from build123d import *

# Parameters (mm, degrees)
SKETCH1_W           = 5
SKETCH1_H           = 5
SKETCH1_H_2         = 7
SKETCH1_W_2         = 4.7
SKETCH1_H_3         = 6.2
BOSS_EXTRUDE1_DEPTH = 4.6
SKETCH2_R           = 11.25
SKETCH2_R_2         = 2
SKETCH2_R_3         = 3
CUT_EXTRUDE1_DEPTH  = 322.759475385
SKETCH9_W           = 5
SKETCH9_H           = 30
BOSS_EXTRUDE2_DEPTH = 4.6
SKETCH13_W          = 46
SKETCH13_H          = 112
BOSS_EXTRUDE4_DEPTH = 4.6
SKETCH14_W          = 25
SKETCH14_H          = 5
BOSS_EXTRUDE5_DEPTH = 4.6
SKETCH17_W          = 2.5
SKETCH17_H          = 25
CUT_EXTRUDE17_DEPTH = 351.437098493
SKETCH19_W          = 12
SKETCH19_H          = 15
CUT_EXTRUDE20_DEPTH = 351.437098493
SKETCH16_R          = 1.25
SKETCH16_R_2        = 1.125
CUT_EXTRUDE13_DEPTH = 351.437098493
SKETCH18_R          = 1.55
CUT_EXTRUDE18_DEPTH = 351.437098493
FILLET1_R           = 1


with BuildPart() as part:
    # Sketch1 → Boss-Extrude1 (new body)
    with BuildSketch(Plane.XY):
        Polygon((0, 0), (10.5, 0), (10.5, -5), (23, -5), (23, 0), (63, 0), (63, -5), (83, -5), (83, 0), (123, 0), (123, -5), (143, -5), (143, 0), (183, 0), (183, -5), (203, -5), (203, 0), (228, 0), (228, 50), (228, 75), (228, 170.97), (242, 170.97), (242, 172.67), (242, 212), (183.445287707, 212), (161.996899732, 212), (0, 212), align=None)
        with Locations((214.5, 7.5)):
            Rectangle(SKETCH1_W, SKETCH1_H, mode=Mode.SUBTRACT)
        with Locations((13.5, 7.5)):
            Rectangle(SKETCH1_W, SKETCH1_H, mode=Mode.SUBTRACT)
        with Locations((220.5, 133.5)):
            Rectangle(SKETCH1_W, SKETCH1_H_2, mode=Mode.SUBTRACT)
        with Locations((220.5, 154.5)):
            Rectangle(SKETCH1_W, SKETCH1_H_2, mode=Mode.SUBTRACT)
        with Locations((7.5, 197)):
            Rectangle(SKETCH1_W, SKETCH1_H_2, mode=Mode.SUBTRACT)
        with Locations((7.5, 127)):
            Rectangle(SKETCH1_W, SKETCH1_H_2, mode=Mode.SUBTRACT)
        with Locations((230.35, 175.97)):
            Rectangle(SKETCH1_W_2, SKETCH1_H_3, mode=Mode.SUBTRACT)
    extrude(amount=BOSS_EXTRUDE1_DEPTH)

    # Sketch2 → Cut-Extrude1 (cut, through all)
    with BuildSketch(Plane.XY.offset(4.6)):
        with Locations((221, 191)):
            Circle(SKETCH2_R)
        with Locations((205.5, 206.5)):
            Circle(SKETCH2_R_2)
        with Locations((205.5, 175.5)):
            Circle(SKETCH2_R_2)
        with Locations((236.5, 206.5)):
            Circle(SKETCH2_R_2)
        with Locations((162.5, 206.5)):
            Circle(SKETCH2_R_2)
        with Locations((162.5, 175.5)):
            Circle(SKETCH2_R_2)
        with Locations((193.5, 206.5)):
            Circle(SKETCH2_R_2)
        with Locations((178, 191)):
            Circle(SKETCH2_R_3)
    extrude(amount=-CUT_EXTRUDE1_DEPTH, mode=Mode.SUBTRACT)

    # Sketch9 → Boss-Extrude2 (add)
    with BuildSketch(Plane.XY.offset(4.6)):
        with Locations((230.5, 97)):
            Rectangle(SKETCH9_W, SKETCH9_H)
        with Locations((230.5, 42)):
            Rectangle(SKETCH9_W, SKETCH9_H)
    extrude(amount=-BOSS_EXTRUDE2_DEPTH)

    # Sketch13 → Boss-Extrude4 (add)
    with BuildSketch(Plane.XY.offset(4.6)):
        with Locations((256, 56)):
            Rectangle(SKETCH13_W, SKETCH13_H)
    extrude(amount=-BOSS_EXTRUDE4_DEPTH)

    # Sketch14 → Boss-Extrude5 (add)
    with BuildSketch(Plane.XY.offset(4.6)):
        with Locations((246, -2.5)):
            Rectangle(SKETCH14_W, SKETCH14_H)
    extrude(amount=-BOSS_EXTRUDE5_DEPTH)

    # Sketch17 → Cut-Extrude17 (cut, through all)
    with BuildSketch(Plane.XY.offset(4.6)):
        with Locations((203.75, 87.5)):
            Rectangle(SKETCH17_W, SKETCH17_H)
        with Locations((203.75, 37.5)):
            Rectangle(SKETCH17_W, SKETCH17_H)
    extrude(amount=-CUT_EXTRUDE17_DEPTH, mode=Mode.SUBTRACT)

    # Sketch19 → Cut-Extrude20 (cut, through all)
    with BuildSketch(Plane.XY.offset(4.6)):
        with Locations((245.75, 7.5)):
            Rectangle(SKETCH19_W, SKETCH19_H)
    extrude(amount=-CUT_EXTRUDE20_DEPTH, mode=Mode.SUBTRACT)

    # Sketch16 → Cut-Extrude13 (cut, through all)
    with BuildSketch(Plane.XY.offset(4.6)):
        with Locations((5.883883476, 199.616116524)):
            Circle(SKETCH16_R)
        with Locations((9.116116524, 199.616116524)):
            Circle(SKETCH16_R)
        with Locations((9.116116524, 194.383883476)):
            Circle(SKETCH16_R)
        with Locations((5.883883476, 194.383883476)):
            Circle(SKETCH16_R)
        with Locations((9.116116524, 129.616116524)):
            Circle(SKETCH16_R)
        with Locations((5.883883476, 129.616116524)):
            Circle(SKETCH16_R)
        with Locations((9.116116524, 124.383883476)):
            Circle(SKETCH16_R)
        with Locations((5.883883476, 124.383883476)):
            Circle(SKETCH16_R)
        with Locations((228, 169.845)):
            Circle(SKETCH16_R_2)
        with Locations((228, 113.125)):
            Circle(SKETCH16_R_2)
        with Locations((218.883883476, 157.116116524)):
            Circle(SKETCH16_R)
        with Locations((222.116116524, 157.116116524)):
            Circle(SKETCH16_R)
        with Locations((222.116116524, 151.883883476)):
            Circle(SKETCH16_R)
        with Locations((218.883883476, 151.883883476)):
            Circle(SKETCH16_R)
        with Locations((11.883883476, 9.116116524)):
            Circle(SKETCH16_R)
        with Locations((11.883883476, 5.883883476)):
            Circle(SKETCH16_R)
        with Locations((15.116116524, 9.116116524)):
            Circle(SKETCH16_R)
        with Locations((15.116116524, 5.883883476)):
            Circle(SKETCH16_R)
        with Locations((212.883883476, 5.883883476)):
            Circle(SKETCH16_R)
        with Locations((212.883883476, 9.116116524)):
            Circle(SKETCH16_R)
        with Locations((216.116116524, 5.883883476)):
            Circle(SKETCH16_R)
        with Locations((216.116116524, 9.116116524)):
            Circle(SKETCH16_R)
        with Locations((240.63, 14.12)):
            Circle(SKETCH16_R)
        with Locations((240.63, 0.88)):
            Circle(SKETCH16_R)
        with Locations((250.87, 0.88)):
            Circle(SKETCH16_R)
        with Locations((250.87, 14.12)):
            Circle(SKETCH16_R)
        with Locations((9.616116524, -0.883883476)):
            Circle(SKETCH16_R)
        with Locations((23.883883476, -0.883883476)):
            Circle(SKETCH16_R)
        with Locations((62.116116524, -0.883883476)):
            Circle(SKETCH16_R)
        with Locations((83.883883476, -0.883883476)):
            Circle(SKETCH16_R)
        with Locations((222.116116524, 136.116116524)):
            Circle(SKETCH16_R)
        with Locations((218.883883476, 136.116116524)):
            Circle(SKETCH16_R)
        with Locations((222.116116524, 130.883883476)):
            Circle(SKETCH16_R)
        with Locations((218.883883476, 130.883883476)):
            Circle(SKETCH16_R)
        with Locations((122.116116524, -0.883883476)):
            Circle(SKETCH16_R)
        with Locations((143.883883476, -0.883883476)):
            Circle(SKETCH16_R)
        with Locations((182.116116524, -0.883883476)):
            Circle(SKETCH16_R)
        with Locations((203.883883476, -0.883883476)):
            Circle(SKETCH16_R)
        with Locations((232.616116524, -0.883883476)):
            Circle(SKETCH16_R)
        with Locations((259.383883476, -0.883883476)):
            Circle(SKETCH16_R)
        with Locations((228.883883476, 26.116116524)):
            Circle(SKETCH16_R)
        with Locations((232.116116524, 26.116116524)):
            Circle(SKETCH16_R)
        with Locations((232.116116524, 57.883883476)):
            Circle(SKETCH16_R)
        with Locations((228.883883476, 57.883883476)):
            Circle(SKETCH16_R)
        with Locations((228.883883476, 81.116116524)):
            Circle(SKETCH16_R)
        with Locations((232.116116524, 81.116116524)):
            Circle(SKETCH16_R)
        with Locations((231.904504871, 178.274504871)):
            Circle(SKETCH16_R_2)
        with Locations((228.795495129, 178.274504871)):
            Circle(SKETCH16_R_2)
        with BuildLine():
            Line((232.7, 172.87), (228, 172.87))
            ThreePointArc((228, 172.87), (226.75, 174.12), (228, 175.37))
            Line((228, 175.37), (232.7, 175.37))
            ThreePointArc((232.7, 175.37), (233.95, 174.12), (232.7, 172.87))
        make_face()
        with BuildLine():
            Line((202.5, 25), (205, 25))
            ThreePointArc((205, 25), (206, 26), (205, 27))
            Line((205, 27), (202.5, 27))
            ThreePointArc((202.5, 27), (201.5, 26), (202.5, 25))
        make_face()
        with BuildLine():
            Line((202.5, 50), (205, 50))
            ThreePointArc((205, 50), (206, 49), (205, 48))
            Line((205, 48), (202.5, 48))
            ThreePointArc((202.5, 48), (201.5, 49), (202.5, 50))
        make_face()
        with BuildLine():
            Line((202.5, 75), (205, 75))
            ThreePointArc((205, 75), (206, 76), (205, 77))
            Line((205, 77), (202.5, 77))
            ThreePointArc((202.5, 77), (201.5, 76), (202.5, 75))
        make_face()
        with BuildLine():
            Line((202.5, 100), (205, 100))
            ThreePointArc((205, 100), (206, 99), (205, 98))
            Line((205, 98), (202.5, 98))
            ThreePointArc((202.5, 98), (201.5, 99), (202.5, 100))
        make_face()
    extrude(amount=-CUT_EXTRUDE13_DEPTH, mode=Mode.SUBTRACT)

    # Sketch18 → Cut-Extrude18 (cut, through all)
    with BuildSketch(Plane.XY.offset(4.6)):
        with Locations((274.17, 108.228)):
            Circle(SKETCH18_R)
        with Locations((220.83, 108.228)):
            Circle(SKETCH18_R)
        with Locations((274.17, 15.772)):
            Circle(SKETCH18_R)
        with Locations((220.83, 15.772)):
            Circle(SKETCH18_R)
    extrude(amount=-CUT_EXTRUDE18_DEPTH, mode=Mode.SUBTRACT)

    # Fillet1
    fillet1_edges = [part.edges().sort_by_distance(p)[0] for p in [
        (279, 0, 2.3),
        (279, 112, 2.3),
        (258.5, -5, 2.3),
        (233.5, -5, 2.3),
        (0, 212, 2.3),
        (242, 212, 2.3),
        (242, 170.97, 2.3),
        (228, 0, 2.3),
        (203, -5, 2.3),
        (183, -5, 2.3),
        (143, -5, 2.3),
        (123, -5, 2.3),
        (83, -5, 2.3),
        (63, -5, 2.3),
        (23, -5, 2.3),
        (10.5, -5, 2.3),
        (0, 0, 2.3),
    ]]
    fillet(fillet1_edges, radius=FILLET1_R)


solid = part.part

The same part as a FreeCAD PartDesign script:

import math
import FreeCAD as App
import Part
import Sketcher


def edges_at(feature, points):
    """Names of the edges that pass closest to the given points."""
    edges = feature.Shape.Edges
    near = lambda p: min(range(len(edges)), key=lambda i: edges[i].distToShape(Part.Vertex(*p))[0])
    return sorted({f"Edge{near(p) + 1}" for p in points})

doc = App.newDocument("Part")
params = doc.addObject("Spreadsheet::Sheet", "Params")
for row, (alias, value) in enumerate([
    ("sketch1_width", "40 mm"),
    ("sketch1_width2", "20 mm"),
    ("sketch1_width3", "25 mm"),
    ("sketch1_width4", "14 mm"),
    ("sketch1_width5", "242 mm"),
    ("pad1_length", "4.6 mm"),
    ("sketch2_diameter", "4 mm"),
    ("sketch2_diameter2", "6 mm"),
    ("sketch2_diameter3", "22.5 mm"),
    ("sketch3_width", "5 mm"),
    ("sketch3_height", "30 mm"),
    ("pad2_length", "4.6 mm"),
    ("sketch4_width", "46 mm"),
    ("sketch4_height", "112 mm"),
    ("pad3_length", "4.6 mm"),
    ("sketch5_width", "25 mm"),
    ("sketch5_height", "5 mm"),
    ("pad4_length", "4.6 mm"),
    ("sketch6_height", "25 mm"),
    ("sketch6_width", "2.5 mm"),
    ("sketch7_width", "12 mm"),
    ("sketch7_height", "15 mm"),
    ("sketch8_radius", "1 mm"),
    ("sketch8_diameter", "2.5 mm"),
    ("sketch8_diameter2", "2.25 mm"),
    ("sketch8_width", "4.7 mm"),
    ("sketch8_width2", "2.5 mm"),
    ("sketch9_diameter", "3.1 mm"),
    ("fillet_radius", "1 mm"),
], start=1):
    params.set(f"A{row}", alias)
    params.set(f"B{row}", "=" + value)
    params.setAlias(f"B{row}", alias)

body = doc.addObject("PartDesign::Body", "Body")

sketch1 = body.newObject("Sketcher::SketchObject", "Sketch")
sketch1.AttachmentSupport = (doc.getObject("XY_Plane"), [""])
sketch1.MapMode = "FlatFace"
sketch1.addGeometry([
    Part.LineSegment(App.Vector(0, 0, 0), App.Vector(10.5, 0, 0)),
    Part.LineSegment(App.Vector(10.5, 0, 0), App.Vector(10.5, -5, 0)),
    Part.LineSegment(App.Vector(10.5, -5, 0), App.Vector(23, -5, 0)),
    Part.LineSegment(App.Vector(23, -5, 0), App.Vector(23, 0, 0)),
    Part.LineSegment(App.Vector(23, 0, 0), App.Vector(63, 0, 0)),
    Part.LineSegment(App.Vector(63, 0, 0), App.Vector(63, -5, 0)),
    Part.LineSegment(App.Vector(63, -5, 0), App.Vector(83, -5, 0)),
    Part.LineSegment(App.Vector(83, -5, 0), App.Vector(83, 0, 0)),
    Part.LineSegment(App.Vector(83, 0, 0), App.Vector(123, 0, 0)),
    Part.LineSegment(App.Vector(123, 0, 0), App.Vector(123, -5, 0)),
    Part.LineSegment(App.Vector(123, -5, 0), App.Vector(143, -5, 0)),
    Part.LineSegment(App.Vector(143, -5, 0), App.Vector(143, 0, 0)),
    Part.LineSegment(App.Vector(143, 0, 0), App.Vector(183, 0, 0)),
    Part.LineSegment(App.Vector(183, 0, 0), App.Vector(183, -5, 0)),
    Part.LineSegment(App.Vector(183, -5, 0), App.Vector(203, -5, 0)),
    Part.LineSegment(App.Vector(203, -5, 0), App.Vector(203, 0, 0)),
    Part.LineSegment(App.Vector(203, 0, 0), App.Vector(228, 0, 0)),
    Part.LineSegment(App.Vector(228, 0, 0), App.Vector(228, 171, 0)),
    Part.LineSegment(App.Vector(228, 171, 0), App.Vector(242, 171, 0)),
    Part.LineSegment(App.Vector(242, 171, 0), App.Vector(242, 212, 0)),
    Part.LineSegment(App.Vector(242, 212, 0), App.Vector(0, 212, 0)),
    Part.LineSegment(App.Vector(0, 212, 0), App.Vector(0, 0, 0)),
    Part.LineSegment(App.Vector(16, 5, 0), App.Vector(11, 5, 0)),
    Part.LineSegment(App.Vector(11, 5, 0), App.Vector(11, 10, 0)),
    Part.LineSegment(App.Vector(11, 10, 0), App.Vector(16, 10, 0)),
    Part.LineSegment(App.Vector(16, 10, 0), App.Vector(16, 5, 0)),
    Part.LineSegment(App.Vector(217, 5, 0), App.Vector(212, 5, 0)),
    Part.LineSegment(App.Vector(212, 5, 0), App.Vector(212, 10, 0)),
    Part.LineSegment(App.Vector(212, 10, 0), App.Vector(217, 10, 0)),
    Part.LineSegment(App.Vector(217, 10, 0), App.Vector(217, 5, 0)),
    Part.LineSegment(App.Vector(10, 123.5, 0), App.Vector(5, 123.5, 0)),
    Part.LineSegment(App.Vector(5, 123.5, 0), App.Vector(5, 130.5, 0)),
    Part.LineSegment(App.Vector(5, 130.5, 0), App.Vector(10, 130.5, 0)),
    Part.LineSegment(App.Vector(10, 130.5, 0), App.Vector(10, 123.5, 0)),
    Part.LineSegment(App.Vector(10, 193.5, 0), App.Vector(5, 193.5, 0)),
    Part.LineSegment(App.Vector(5, 193.5, 0), App.Vector(5, 200.5, 0)),
    Part.LineSegment(App.Vector(5, 200.5, 0), App.Vector(10, 200.5, 0)),
    Part.LineSegment(App.Vector(10, 200.5, 0), App.Vector(10, 193.5, 0)),
    Part.LineSegment(App.Vector(223, 130, 0), App.Vector(218, 130, 0)),
    Part.LineSegment(App.Vector(218, 130, 0), App.Vector(218, 137, 0)),
    Part.LineSegment(App.Vector(218, 137, 0), App.Vector(223, 137, 0)),
    Part.LineSegment(App.Vector(223, 137, 0), App.Vector(223, 130, 0)),
    Part.LineSegment(App.Vector(223, 151, 0), App.Vector(218, 151, 0)),
    Part.LineSegment(App.Vector(218, 151, 0), App.Vector(218, 158, 0)),
    Part.LineSegment(App.Vector(218, 158, 0), App.Vector(223, 158, 0)),
    Part.LineSegment(App.Vector(223, 158, 0), App.Vector(223, 151, 0)),
    Part.LineSegment(App.Vector(232.7, 172.9, 0), App.Vector(228, 172.9, 0)),
    Part.LineSegment(App.Vector(228, 172.9, 0), App.Vector(228, 179.1, 0)),
    Part.LineSegment(App.Vector(228, 179.1, 0), App.Vector(232.7, 179.1, 0)),
    Part.LineSegment(App.Vector(232.7, 179.1, 0), App.Vector(232.7, 172.9, 0)),
], False)
sketch1.addConstraint([
    Sketcher.Constraint("Coincident", 0, 2, 1, 1),
    Sketcher.Constraint("Coincident", 1, 2, 2, 1),
    Sketcher.Constraint("Coincident", 2, 2, 3, 1),
    Sketcher.Constraint("Coincident", 3, 2, 4, 1),
    Sketcher.Constraint("Coincident", 4, 2, 5, 1),
    Sketcher.Constraint("Coincident", 5, 2, 6, 1),
    Sketcher.Constraint("Coincident", 6, 2, 7, 1),
    Sketcher.Constraint("Coincident", 7, 2, 8, 1),
    Sketcher.Constraint("Coincident", 8, 2, 9, 1),
    Sketcher.Constraint("Coincident", 9, 2, 10, 1),
    Sketcher.Constraint("Coincident", 10, 2, 11, 1),
    Sketcher.Constraint("Coincident", 11, 2, 12, 1),
    Sketcher.Constraint("Coincident", 12, 2, 13, 1),
    Sketcher.Constraint("Coincident", 13, 2, 14, 1),
    Sketcher.Constraint("Coincident", 14, 2, 15, 1),
    Sketcher.Constraint("Coincident", 15, 2, 16, 1),
    Sketcher.Constraint("Coincident", 16, 2, 17, 1),
    Sketcher.Constraint("Coincident", 17, 2, 18, 1),
    Sketcher.Constraint("Coincident", 18, 2, 19, 1),
    Sketcher.Constraint("Coincident", 19, 2, 20, 1),
    Sketcher.Constraint("Coincident", 20, 2, 21, 1),
    Sketcher.Constraint("Coincident", 21, 2, 0, 1),
    Sketcher.Constraint("Coincident", 22, 2, 23, 1),
    Sketcher.Constraint("Coincident", 23, 2, 24, 1),
    Sketcher.Constraint("Coincident", 24, 2, 25, 1),
    Sketcher.Constraint("Coincident", 25, 2, 22, 1),
    Sketcher.Constraint("Coincident", 26, 2, 27, 1),
    Sketcher.Constraint("Coincident", 27, 2, 28, 1),
    Sketcher.Constraint("Coincident", 28, 2, 29, 1),
    Sketcher.Constraint("Coincident", 29, 2, 26, 1),
    Sketcher.Constraint("Coincident", 30, 2, 31, 1),
    Sketcher.Constraint("Coincident", 31, 2, 32, 1),
    Sketcher.Constraint("Coincident", 32, 2, 33, 1),
    Sketcher.Constraint("Coincident", 33, 2, 30, 1),
    Sketcher.Constraint("Coincident", 34, 2, 35, 1),
    Sketcher.Constraint("Coincident", 35, 2, 36, 1),
    Sketcher.Constraint("Coincident", 36, 2, 37, 1),
    Sketcher.Constraint("Coincident", 37, 2, 34, 1),
    Sketcher.Constraint("Coincident", 38, 2, 39, 1),
    Sketcher.Constraint("Coincident", 39, 2, 40, 1),
    Sketcher.Constraint("Coincident", 40, 2, 41, 1),
    Sketcher.Constraint("Coincident", 41, 2, 38, 1),
    Sketcher.Constraint("Coincident", 42, 2, 43, 1),
    Sketcher.Constraint("Coincident", 43, 2, 44, 1),
    Sketcher.Constraint("Coincident", 44, 2, 45, 1),
    Sketcher.Constraint("Coincident", 45, 2, 42, 1),
    Sketcher.Constraint("Coincident", 46, 2, 47, 1),
    Sketcher.Constraint("Coincident", 47, 2, 48, 1),
    Sketcher.Constraint("Coincident", 48, 2, 49, 1),
    Sketcher.Constraint("Coincident", 49, 2, 46, 1),
    Sketcher.Constraint("Horizontal", 0),
    Sketcher.Constraint("Vertical", 1),
    Sketcher.Constraint("Horizontal", 2),
    Sketcher.Constraint("Vertical", 3),
    Sketcher.Constraint("Horizontal", 4),
    Sketcher.Constraint("Vertical", 5),
    Sketcher.Constraint("Horizontal", 6),
    Sketcher.Constraint("Vertical", 7),
    Sketcher.Constraint("Horizontal", 8),
    Sketcher.Constraint("Vertical", 9),
    Sketcher.Constraint("Horizontal", 10),
    Sketcher.Constraint("Vertical", 11),
    Sketcher.Constraint("Horizontal", 12),
    Sketcher.Constraint("Vertical", 13),
    Sketcher.Constraint("Horizontal", 14),
    Sketcher.Constraint("Vertical", 15),
    Sketcher.Constraint("Horizontal", 16),
    Sketcher.Constraint("Vertical", 17),
    Sketcher.Constraint("Horizontal", 18),
    Sketcher.Constraint("Vertical", 19),
    Sketcher.Constraint("Horizontal", 20),
    Sketcher.Constraint("Vertical", 21),
    Sketcher.Constraint("Horizontal", 22),
    Sketcher.Constraint("Vertical", 23),
    Sketcher.Constraint("Horizontal", 24),
    Sketcher.Constraint("Vertical", 25),
    Sketcher.Constraint("Horizontal", 26),
    Sketcher.Constraint("Vertical", 27),
    Sketcher.Constraint("Horizontal", 28),
    Sketcher.Constraint("Vertical", 29),
    Sketcher.Constraint("Horizontal", 30),
    Sketcher.Constraint("Vertical", 31),
    Sketcher.Constraint("Horizontal", 32),
    Sketcher.Constraint("Vertical", 33),
    Sketcher.Constraint("Horizontal", 34),
    Sketcher.Constraint("Vertical", 35),
    Sketcher.Constraint("Horizontal", 36),
    Sketcher.Constraint("Vertical", 37),
    Sketcher.Constraint("Horizontal", 38),
    Sketcher.Constraint("Vertical", 39),
    Sketcher.Constraint("Horizontal", 40),
    Sketcher.Constraint("Vertical", 41),
    Sketcher.Constraint("Horizontal", 42),
    Sketcher.Constraint("Vertical", 43),
    Sketcher.Constraint("Horizontal", 44),
    Sketcher.Constraint("Vertical", 45),
    Sketcher.Constraint("Horizontal", 46),
    Sketcher.Constraint("Vertical", 47),
    Sketcher.Constraint("Horizontal", 48),
    Sketcher.Constraint("Vertical", 49),
    Sketcher.Constraint("Coincident", 21, 2, -1, 1),
    Sketcher.Constraint("PointOnObject", 3, 2, -1),
    Sketcher.Constraint("PointOnObject", 7, 2, -1),
    Sketcher.Constraint("PointOnObject", 11, 2, -1),
    Sketcher.Constraint("PointOnObject", 15, 2, -1),
    Sketcher.Constraint("Horizontal", 2, 2, 5, 2),
    Sketcher.Constraint("Horizontal", 6, 2, 9, 2),
    Sketcher.Constraint("Horizontal", 10, 2, 13, 2),
    Sketcher.Constraint("Horizontal", 25, 2, 26, 2),
    Sketcher.Constraint("Horizontal", 24, 2, 27, 2),
    Sketcher.Constraint("Vertical", 31, 2, 34, 2),
    Sketcher.Constraint("Vertical", 33, 2, 36, 2),
    Sketcher.Constraint("Vertical", 39, 2, 42, 2),
    Sketcher.Constraint("Vertical", 41, 2, 44, 2),
    Sketcher.Constraint("Vertical", 17, 2, 46, 2),
    Sketcher.Constraint("Equal", 4, 8),
    Sketcher.Constraint("Equal", 6, 10),
    Sketcher.Constraint("Equal", 8, 12),
    Sketcher.Constraint("Equal", 10, 14),
    Sketcher.Constraint("Equal", 24, 26),
    Sketcher.Constraint("Equal", 28, 30),
    Sketcher.Constraint("Equal", 36, 38),
    Sketcher.Constraint("Equal", 44, 1),
    Sketcher.Constraint("Equal", 15, 23),
    Sketcher.Constraint("Equal", 33, 35),
    Sketcher.Constraint("Equal", 37, 39),
    Sketcher.Constraint("Equal", 41, 43),
    Sketcher.Constraint("DistanceX", 4, 1, 4, 2, 40.0),
    Sketcher.Constraint("DistanceX", 6, 1, 6, 2, 20.0),
    Sketcher.Constraint("DistanceX", 16, 1, 16, 2, 25.0),
    Sketcher.Constraint("DistanceX", 18, 1, 18, 2, 14.0),
    Sketcher.Constraint("DistanceX", 20, 2, 20, 1, 242.0),
    Sketcher.Constraint("DistanceX", 22, 2, 22, 1, 5.0),
    Sketcher.Constraint("DistanceY", 21, 2, 21, 1, 212.0),
    Sketcher.Constraint("DistanceY", 31, 1, 31, 2, 7.0),
    Sketcher.Constraint("DistanceX", 0, 1, 0, 2, 10.5),
    Sketcher.Constraint("DistanceX", 46, 2, 46, 1, 4.7),
    Sketcher.Constraint("DistanceY", 47, 1, 47, 2, 6.2),
    Sketcher.Constraint("DistanceX", -1, 1, 22, 2, 11.0),
    Sketcher.Constraint("DistanceY", -1, 1, 22, 2, 5.0),
    Sketcher.Constraint("DistanceX", -1, 1, 26, 2, 212.0),
    Sketcher.Constraint("DistanceX", -1, 1, 30, 2, 5.0),
    Sketcher.Constraint("DistanceX", -1, 1, 38, 2, 218.0),
    Sketcher.Constraint("DistanceY", -1, 1, 38, 2, 130.0),
    Sketcher.Constraint("DistanceY", -1, 1, 42, 2, 151.0),
    Sketcher.Constraint("DistanceY", 31, 2, 34, 2, 63.0),
    Sketcher.Constraint("DistanceY", 17, 1, 17, 2, 170.97),
    Sketcher.Constraint("DistanceY", -1, 1, 30, 2, 123.5),
    Sketcher.Constraint("DistanceY", 17, 2, 46, 2, 1.9),
])
sketch1.setExpression("Constraints[127]", "Params.sketch1_width")
sketch1.setExpression("Constraints[128]", "Params.sketch1_width2")
sketch1.setExpression("Constraints[129]", "Params.sketch1_width3")
sketch1.setExpression("Constraints[130]", "Params.sketch1_width4")
sketch1.setExpression("Constraints[131]", "Params.sketch1_width5")
pad1 = body.newObject("PartDesign::Pad", "Pad")
pad1.Profile = sketch1
pad1.setExpression("Length", "Params.pad1_length")

sketch2 = body.newObject("Sketcher::SketchObject", "Sketch001")
sketch2.AttachmentSupport = (doc.getObject("XY_Plane"), [""])
sketch2.MapMode = "FlatFace"
sketch2.AttachmentOffset = App.Placement(App.Vector(0, 0, 4.6), App.Rotation())
sketch2.addGeometry([
    Part.Circle(App.Vector(221, 191, 0), App.Vector(0, 0, 1), 11.2),
    Part.Circle(App.Vector(205.5, 206.5, 0), App.Vector(0, 0, 1), 2),
    Part.Circle(App.Vector(205.5, 175.5, 0), App.Vector(0, 0, 1), 2),
    Part.Circle(App.Vector(236.5, 206.5, 0), App.Vector(0, 0, 1), 2),
    Part.Circle(App.Vector(162.5, 206.5, 0), App.Vector(0, 0, 1), 2),
    Part.Circle(App.Vector(162.5, 175.5, 0), App.Vector(0, 0, 1), 2),
    Part.Circle(App.Vector(193.5, 206.5, 0), App.Vector(0, 0, 1), 2),
    Part.Circle(App.Vector(178, 191, 0), App.Vector(0, 0, 1), 3),
], False)
sketch2.addConstraint([
    Sketcher.Constraint("Equal", 1, 2),
    Sketcher.Constraint("Equal", 2, 3),
    Sketcher.Constraint("Equal", 3, 4),
    Sketcher.Constraint("Equal", 4, 5),
    Sketcher.Constraint("Equal", 5, 6),
    Sketcher.Constraint("Horizontal", 1, 3, 3, 3),
    Sketcher.Constraint("Horizontal", 3, 3, 4, 3),
    Sketcher.Constraint("Horizontal", 2, 3, 5, 3),
    Sketcher.Constraint("Horizontal", 4, 3, 6, 3),
    Sketcher.Constraint("Horizontal", 0, 3, 7, 3),
    Sketcher.Constraint("Vertical", 1, 3, 2, 3),
    Sketcher.Constraint("Vertical", 4, 3, 5, 3),
    Sketcher.Constraint("Diameter", 1, 4.0),
    Sketcher.Constraint("Diameter", 7, 6.0),
    Sketcher.Constraint("Diameter", 0, 22.5),
    Sketcher.Constraint("DistanceX", -1, 1, 0, 3, 221.0),
    Sketcher.Constraint("DistanceY", -1, 1, 0, 3, 191.0),
    Sketcher.Constraint("DistanceX", -1, 1, 7, 3, 178.0),
    Sketcher.Constraint("DistanceY", 2, 3, 1, 3, 31.0),
    Sketcher.Constraint("DistanceX", 1, 3, 3, 3, 31.0),
    Sketcher.Constraint("DistanceX", 4, 3, 1, 3, 43.0),
    Sketcher.Constraint("DistanceX", 6, 3, 1, 3, 12.0),
    Sketcher.Constraint("DistanceX", -1, 1, 1, 3, 205.5),
    Sketcher.Constraint("DistanceY", -1, 1, 1, 3, 206.5),
])
sketch2.setExpression("Constraints[12]", "Params.sketch2_diameter")
sketch2.setExpression("Constraints[13]", "Params.sketch2_diameter2")
sketch2.setExpression("Constraints[14]", "Params.sketch2_diameter3")
pocket1 = body.newObject("PartDesign::Pocket", "Pocket")
pocket1.Profile = sketch2
pocket1.Type = "ThroughAll"

sketch3 = body.newObject("Sketcher::SketchObject", "Sketch002")
sketch3.AttachmentSupport = (doc.getObject("XY_Plane"), [""])
sketch3.MapMode = "FlatFace"
sketch3.AttachmentOffset = App.Placement(App.Vector(0, 0, 4.6), App.Rotation())
sketch3.addGeometry([
    Part.LineSegment(App.Vector(228, 112, 0), App.Vector(228, 82, 0)),
    Part.LineSegment(App.Vector(228, 82, 0), App.Vector(233, 82, 0)),
    Part.LineSegment(App.Vector(233, 82, 0), App.Vector(233, 112, 0)),
    Part.LineSegment(App.Vector(233, 112, 0), App.Vector(228, 112, 0)),
    Part.LineSegment(App.Vector(228, 57, 0), App.Vector(228, 27, 0)),
    Part.LineSegment(App.Vector(228, 27, 0), App.Vector(233, 27, 0)),
    Part.LineSegment(App.Vector(233, 27, 0), App.Vector(233, 57, 0)),
    Part.LineSegment(App.Vector(233, 57, 0), App.Vector(228, 57, 0)),
], False)
sketch3.addConstraint([
    Sketcher.Constraint("Coincident", 0, 2, 1, 1),
    Sketcher.Constraint("Coincident", 1, 2, 2, 1),
    Sketcher.Constraint("Coincident", 2, 2, 3, 1),
    Sketcher.Constraint("Coincident", 3, 2, 0, 1),
    Sketcher.Constraint("Coincident", 4, 2, 5, 1),
    Sketcher.Constraint("Coincident", 5, 2, 6, 1),
    Sketcher.Constraint("Coincident", 6, 2, 7, 1),
    Sketcher.Constraint("Coincident", 7, 2, 4, 1),
    Sketcher.Constraint("Vertical", 0),
    Sketcher.Constraint("Horizontal", 1),
    Sketcher.Constraint("Vertical", 2),
    Sketcher.Constraint("Horizontal", 3),
    Sketcher.Constraint("Vertical", 4),
    Sketcher.Constraint("Horizontal", 5),
    Sketcher.Constraint("Vertical", 6),
    Sketcher.Constraint("Horizontal", 7),
    Sketcher.Constraint("Vertical", 3, 2, 4, 2),
    Sketcher.Constraint("Vertical", 2, 2, 5, 2),
    Sketcher.Constraint("Equal", 2, 4),
    Sketcher.Constraint("DistanceX", 1, 1, 1, 2, 5.0),
    Sketcher.Constraint("DistanceY", 0, 2, 0, 1, 30.0),
    Sketcher.Constraint("DistanceX", -1, 1, 0, 2, 228.0),
    Sketcher.Constraint("DistanceY", -1, 1, 0, 2, 82.0),
    Sketcher.Constraint("DistanceY", -1, 1, 4, 2, 27.0),
])
sketch3.setExpression("Constraints[19]", "Params.sketch3_width")
sketch3.setExpression("Constraints[20]", "Params.sketch3_height")
pad2 = body.newObject("PartDesign::Pad", "Pad001")
pad2.Profile = sketch3
pad2.setExpression("Length", "Params.pad2_length")
pad2.Reversed = True

sketch4 = body.newObject("Sketcher::SketchObject", "Sketch003")
sketch4.AttachmentSupport = (doc.getObject("XY_Plane"), [""])
sketch4.MapMode = "FlatFace"
sketch4.AttachmentOffset = App.Placement(App.Vector(0, 0, 4.6), App.Rotation())
sketch4.addGeometry([
    Part.LineSegment(App.Vector(233, 112, 0), App.Vector(233, 0, 0)),
    Part.LineSegment(App.Vector(233, 0, 0), App.Vector(279, 0, 0)),
    Part.LineSegment(App.Vector(279, 0, 0), App.Vector(279, 112, 0)),
    Part.LineSegment(App.Vector(279, 112, 0), App.Vector(233, 112, 0)),
], False)
sketch4.addConstraint([
    Sketcher.Constraint("Coincident", 0, 2, 1, 1),
    Sketcher.Constraint("Coincident", 1, 2, 2, 1),
    Sketcher.Constraint("Coincident", 2, 2, 3, 1),
    Sketcher.Constraint("Coincident", 3, 2, 0, 1),
    Sketcher.Constraint("Vertical", 0),
    Sketcher.Constraint("Horizontal", 1),
    Sketcher.Constraint("Vertical", 2),
    Sketcher.Constraint("Horizontal", 3),
    Sketcher.Constraint("PointOnObject", 0, 2, -1),
    Sketcher.Constraint("DistanceX", 1, 1, 1, 2, 46.0),
    Sketcher.Constraint("DistanceY", 0, 2, 0, 1, 112.0),
    Sketcher.Constraint("DistanceX", -1, 1, 0, 2, 233.0),
])
sketch4.setExpression("Constraints[9]", "Params.sketch4_width")
sketch4.setExpression("Constraints[10]", "Params.sketch4_height")
pad3 = body.newObject("PartDesign::Pad", "Pad002")
pad3.Profile = sketch4
pad3.setExpression("Length", "Params.pad3_length")
pad3.Reversed = True

sketch5 = body.newObject("Sketcher::SketchObject", "Sketch004")
sketch5.AttachmentSupport = (doc.getObject("XY_Plane"), [""])
sketch5.MapMode = "FlatFace"
sketch5.AttachmentOffset = App.Placement(App.Vector(0, 0, 4.6), App.Rotation())
sketch5.addGeometry([
    Part.LineSegment(App.Vector(234, 0, 0), App.Vector(234, -5, 0)),
    Part.LineSegment(App.Vector(234, -5, 0), App.Vector(258, -5, 0)),
    Part.LineSegment(App.Vector(258, -5, 0), App.Vector(258, 0, 0)),
    Part.LineSegment(App.Vector(258, 0, 0), App.Vector(234, 0, 0)),
], False)
sketch5.addConstraint([
    Sketcher.Constraint("Coincident", 0, 2, 1, 1),
    Sketcher.Constraint("Coincident", 1, 2, 2, 1),
    Sketcher.Constraint("Coincident", 2, 2, 3, 1),
    Sketcher.Constraint("Coincident", 3, 2, 0, 1),
    Sketcher.Constraint("Vertical", 0),
    Sketcher.Constraint("Horizontal", 1),
    Sketcher.Constraint("Vertical", 2),
    Sketcher.Constraint("Horizontal", 3),
    Sketcher.Constraint("PointOnObject", 2, 2, -1),
    Sketcher.Constraint("DistanceX", 1, 1, 1, 2, 25.0),
    Sketcher.Constraint("DistanceY", 0, 2, 0, 1, 5.0),
    Sketcher.Constraint("DistanceX", -1, 1, 0, 2, 233.5),
])
sketch5.setExpression("Constraints[9]", "Params.sketch5_width")
sketch5.setExpression("Constraints[10]", "Params.sketch5_height")
pad4 = body.newObject("PartDesign::Pad", "Pad003")
pad4.Profile = sketch5
pad4.setExpression("Length", "Params.pad4_length")
pad4.Reversed = True

sketch6 = body.newObject("Sketcher::SketchObject", "Sketch005")
sketch6.AttachmentSupport = (doc.getObject("XY_Plane"), [""])
sketch6.MapMode = "FlatFace"
sketch6.AttachmentOffset = App.Placement(App.Vector(0, 0, 4.6), App.Rotation())
sketch6.addGeometry([
    Part.LineSegment(App.Vector(202.5, 100, 0), App.Vector(202.5, 75, 0)),
    Part.LineSegment(App.Vector(202.5, 75, 0), App.Vector(205, 75, 0)),
    Part.LineSegment(App.Vector(205, 75, 0), App.Vector(205, 100, 0)),
    Part.LineSegment(App.Vector(205, 100, 0), App.Vector(202.5, 100, 0)),
    Part.LineSegment(App.Vector(202.5, 50, 0), App.Vector(202.5, 25, 0)),
    Part.LineSegment(App.Vector(202.5, 25, 0), App.Vector(205, 25, 0)),
    Part.LineSegment(App.Vector(205, 25, 0), App.Vector(205, 50, 0)),
    Part.LineSegment(App.Vector(205, 50, 0), App.Vector(202.5, 50, 0)),
], False)
sketch6.addConstraint([
    Sketcher.Constraint("Coincident", 0, 2, 1, 1),
    Sketcher.Constraint("Coincident", 1, 2, 2, 1),
    Sketcher.Constraint("Coincident", 2, 2, 3, 1),
    Sketcher.Constraint("Coincident", 3, 2, 0, 1),
    Sketcher.Constraint("Coincident", 4, 2, 5, 1),
    Sketcher.Constraint("Coincident", 5, 2, 6, 1),
    Sketcher.Constraint("Coincident", 6, 2, 7, 1),
    Sketcher.Constraint("Coincident", 7, 2, 4, 1),
    Sketcher.Constraint("Vertical", 0),
    Sketcher.Constraint("Horizontal", 1),
    Sketcher.Constraint("Vertical", 2),
    Sketcher.Constraint("Horizontal", 3),
    Sketcher.Constraint("Vertical", 4),
    Sketcher.Constraint("Horizontal", 5),
    Sketcher.Constraint("Vertical", 6),
    Sketcher.Constraint("Horizontal", 7),
    Sketcher.Constraint("Vertical", 3, 2, 4, 2),
    Sketcher.Constraint("Vertical", 2, 2, 5, 2),
    Sketcher.Constraint("Equal", 2, 4),
    Sketcher.Constraint("DistanceY", 0, 2, 0, 1, 25.0),
    Sketcher.Constraint("DistanceX", 1, 1, 1, 2, 2.5),
    Sketcher.Constraint("DistanceY", -1, 1, 0, 2, 75.0),
    Sketcher.Constraint("DistanceX", -1, 1, 1, 2, 205.0),
    Sketcher.Constraint("DistanceY", -1, 1, 4, 2, 25.0),
])
sketch6.setExpression("Constraints[19]", "Params.sketch6_height")
sketch6.setExpression("Constraints[20]", "Params.sketch6_width")
pocket2 = body.newObject("PartDesign::Pocket", "Pocket001")
pocket2.Profile = sketch6
pocket2.Type = "ThroughAll"

sketch7 = body.newObject("Sketcher::SketchObject", "Sketch006")
sketch7.AttachmentSupport = (doc.getObject("XY_Plane"), [""])
sketch7.MapMode = "FlatFace"
sketch7.AttachmentOffset = App.Placement(App.Vector(0, 0, 4.6), App.Rotation())
sketch7.addGeometry([
    Part.LineSegment(App.Vector(240, 15, 0), App.Vector(240, 0, 0)),
    Part.LineSegment(App.Vector(240, 0, 0), App.Vector(252, 0, 0)),
    Part.LineSegment(App.Vector(252, 0, 0), App.Vector(252, 15, 0)),
    Part.LineSegment(App.Vector(252, 15, 0), App.Vector(240, 15, 0)),
], False)
sketch7.addConstraint([
    Sketcher.Constraint("Coincident", 0, 2, 1, 1),
    Sketcher.Constraint("Coincident", 1, 2, 2, 1),
    Sketcher.Constraint("Coincident", 2, 2, 3, 1),
    Sketcher.Constraint("Coincident", 3, 2, 0, 1),
    Sketcher.Constraint("Vertical", 0),
    Sketcher.Constraint("Horizontal", 1),
    Sketcher.Constraint("Vertical", 2),
    Sketcher.Constraint("Horizontal", 3),
    Sketcher.Constraint("PointOnObject", 0, 2, -1),
    Sketcher.Constraint("DistanceX", 1, 1, 1, 2, 12.0),
    Sketcher.Constraint("DistanceY", 0, 2, 0, 1, 15.0),
    Sketcher.Constraint("DistanceX", -1, 1, 0, 2, 239.75),
])
sketch7.setExpression("Constraints[9]", "Params.sketch7_width")
sketch7.setExpression("Constraints[10]", "Params.sketch7_height")
pocket3 = body.newObject("PartDesign::Pocket", "Pocket002")
pocket3.Profile = sketch7
pocket3.Type = "ThroughAll"

sketch8 = body.newObject("Sketcher::SketchObject", "Sketch007")
sketch8.AttachmentSupport = (doc.getObject("XY_Plane"), [""])
sketch8.MapMode = "FlatFace"
sketch8.AttachmentOffset = App.Placement(App.Vector(0, 0, 4.6), App.Rotation())
sketch8.addGeometry([
    Part.Circle(App.Vector(5.9, 199.6, 0), App.Vector(0, 0, 1), 1.2),
    Part.Circle(App.Vector(9.1, 199.6, 0), App.Vector(0, 0, 1), 1.2),
    Part.Circle(App.Vector(9.1, 194.4, 0), App.Vector(0, 0, 1), 1.2),
    Part.Circle(App.Vector(5.9, 194.4, 0), App.Vector(0, 0, 1), 1.2),
    Part.Circle(App.Vector(9.1, 129.6, 0), App.Vector(0, 0, 1), 1.2),
    Part.Circle(App.Vector(5.9, 129.6, 0), App.Vector(0, 0, 1), 1.2),
    Part.Circle(App.Vector(9.1, 124.4, 0), App.Vector(0, 0, 1), 1.2),
    Part.Circle(App.Vector(5.9, 124.4, 0), App.Vector(0, 0, 1), 1.2),
    Part.Circle(App.Vector(228, 169.8, 0), App.Vector(0, 0, 1), 1.1),
    Part.Circle(App.Vector(228, 113.1, 0), App.Vector(0, 0, 1), 1.1),
    Part.Circle(App.Vector(218.9, 157.1, 0), App.Vector(0, 0, 1), 1.2),
    Part.Circle(App.Vector(222.1, 157.1, 0), App.Vector(0, 0, 1), 1.2),
    Part.Circle(App.Vector(222.1, 151.9, 0), App.Vector(0, 0, 1), 1.2),
    Part.Circle(App.Vector(218.9, 151.9, 0), App.Vector(0, 0, 1), 1.2),
    Part.Circle(App.Vector(11.9, 9.1, 0), App.Vector(0, 0, 1), 1.2),
    Part.Circle(App.Vector(11.9, 5.9, 0), App.Vector(0, 0, 1), 1.2),
    Part.Circle(App.Vector(15.1, 9.1, 0), App.Vector(0, 0, 1), 1.2),
    Part.Circle(App.Vector(15.1, 5.9, 0), App.Vector(0, 0, 1), 1.2),
    Part.Circle(App.Vector(212.9, 5.9, 0), App.Vector(0, 0, 1), 1.2),
    Part.Circle(App.Vector(212.9, 9.1, 0), App.Vector(0, 0, 1), 1.2),
    Part.Circle(App.Vector(216.1, 5.9, 0), App.Vector(0, 0, 1), 1.2),
    Part.Circle(App.Vector(216.1, 9.1, 0), App.Vector(0, 0, 1), 1.2),
    Part.Circle(App.Vector(240.6, 14.1, 0), App.Vector(0, 0, 1), 1.2),
    Part.Circle(App.Vector(240.6, 0.9, 0), App.Vector(0, 0, 1), 1.2),
    Part.Circle(App.Vector(250.9, 0.9, 0), App.Vector(0, 0, 1), 1.2),
    Part.Circle(App.Vector(250.9, 14.1, 0), App.Vector(0, 0, 1), 1.2),
    Part.Circle(App.Vector(9.6, -0.9, 0), App.Vector(0, 0, 1), 1.2),
    Part.Circle(App.Vector(23.9, -0.9, 0), App.Vector(0, 0, 1), 1.2),
    Part.Circle(App.Vector(62.1, -0.9, 0), App.Vector(0, 0, 1), 1.2),
    Part.Circle(App.Vector(83.9, -0.9, 0), App.Vector(0, 0, 1), 1.2),
    Part.Circle(App.Vector(222.1, 136.1, 0), App.Vector(0, 0, 1), 1.2),
    Part.Circle(App.Vector(218.9, 136.1, 0), App.Vector(0, 0, 1), 1.2),
    Part.Circle(App.Vector(222.1, 130.9, 0), App.Vector(0, 0, 1), 1.2),
    Part.Circle(App.Vector(218.9, 130.9, 0), App.Vector(0, 0, 1), 1.2),
    Part.Circle(App.Vector(122.1, -0.9, 0), App.Vector(0, 0, 1), 1.2),
    Part.Circle(App.Vector(143.9, -0.9, 0), App.Vector(0, 0, 1), 1.2),
    Part.Circle(App.Vector(182.1, -0.9, 0), App.Vector(0, 0, 1), 1.2),
    Part.Circle(App.Vector(203.9, -0.9, 0), App.Vector(0, 0, 1), 1.2),
    Part.Circle(App.Vector(232.6, -0.9, 0), App.Vector(0, 0, 1), 1.2),
    Part.Circle(App.Vector(259.4, -0.9, 0), App.Vector(0, 0, 1), 1.2),
    Part.Circle(App.Vector(228.9, 26.1, 0), App.Vector(0, 0, 1), 1.2),
    Part.Circle(App.Vector(232.1, 26.1, 0), App.Vector(0, 0, 1), 1.2),
    Part.Circle(App.Vector(232.1, 57.9, 0), App.Vector(0, 0, 1), 1.2),
    Part.Circle(App.Vector(228.9, 57.9, 0), App.Vector(0, 0, 1), 1.2),
    Part.Circle(App.Vector(228.9, 81.1, 0), App.Vector(0, 0, 1), 1.2),
    Part.Circle(App.Vector(232.1, 81.1, 0), App.Vector(0, 0, 1), 1.2),
    Part.Circle(App.Vector(231.9, 178.3, 0), App.Vector(0, 0, 1), 1.1),
    Part.Circle(App.Vector(228.8, 178.3, 0), App.Vector(0, 0, 1), 1.1),
    Part.LineSegment(App.Vector(228, 172.9, 0), App.Vector(232.7, 172.9, 0)),
    Part.ArcOfCircle(Part.Circle(App.Vector(232.7, 174.1, 0), App.Vector(0, 0, 1), 1.2), math.radians(-90), math.radians(90)),
    Part.LineSegment(App.Vector(232.7, 175.4, 0), App.Vector(228, 175.4, 0)),
    Part.ArcOfCircle(Part.Circle(App.Vector(228, 174.1, 0), App.Vector(0, 0, 1), 1.2), math.radians(90), math.radians(270)),
    Part.LineSegment(App.Vector(202.5, 25, 0), App.Vector(205, 25, 0)),
    Part.ArcOfCircle(Part.Circle(App.Vector(205, 26, 0), App.Vector(0, 0, 1), 1), math.radians(-90), math.radians(90)),
    Part.LineSegment(App.Vector(205, 27, 0), App.Vector(202.5, 27, 0)),
    Part.ArcOfCircle(Part.Circle(App.Vector(202.5, 26, 0), App.Vector(0, 0, 1), 1), math.radians(90), math.radians(270)),
    Part.LineSegment(App.Vector(205, 50, 0), App.Vector(202.5, 50, 0)),
    Part.ArcOfCircle(Part.Circle(App.Vector(202.5, 49, 0), App.Vector(0, 0, 1), 1), math.radians(90), math.radians(270)),
    Part.LineSegment(App.Vector(202.5, 48, 0), App.Vector(205, 48, 0)),
    Part.ArcOfCircle(Part.Circle(App.Vector(205, 49, 0), App.Vector(0, 0, 1), 1), math.radians(-90), math.radians(90)),
    Part.LineSegment(App.Vector(202.5, 75, 0), App.Vector(205, 75, 0)),
    Part.ArcOfCircle(Part.Circle(App.Vector(205, 76, 0), App.Vector(0, 0, 1), 1), math.radians(-90), math.radians(90)),
    Part.LineSegment(App.Vector(205, 77, 0), App.Vector(202.5, 77, 0)),
    Part.ArcOfCircle(Part.Circle(App.Vector(202.5, 76, 0), App.Vector(0, 0, 1), 1), math.radians(90), math.radians(270)),
    Part.LineSegment(App.Vector(205, 100, 0), App.Vector(202.5, 100, 0)),
    Part.ArcOfCircle(Part.Circle(App.Vector(202.5, 99, 0), App.Vector(0, 0, 1), 1), math.radians(90), math.radians(270)),
    Part.LineSegment(App.Vector(202.5, 98, 0), App.Vector(205, 98, 0)),
    Part.ArcOfCircle(Part.Circle(App.Vector(205, 99, 0), App.Vector(0, 0, 1), 1), math.radians(-90), math.radians(90)),
], False)
sketch8.addConstraint([
    Sketcher.Constraint("Tangent", 48, 2, 49, 1),
    Sketcher.Constraint("Tangent", 49, 2, 50, 1),
    Sketcher.Constraint("Tangent", 50, 2, 51, 1),
    Sketcher.Constraint("Tangent", 51, 2, 48, 1),
    Sketcher.Constraint("Tangent", 52, 2, 53, 1),
    Sketcher.Constraint("Tangent", 53, 2, 54, 1),
    Sketcher.Constraint("Tangent", 54, 2, 55, 1),
    Sketcher.Constraint("Tangent", 55, 2, 52, 1),
    Sketcher.Constraint("Tangent", 56, 2, 57, 1),
    Sketcher.Constraint("Tangent", 57, 2, 58, 1),
    Sketcher.Constraint("Tangent", 58, 2, 59, 1),
    Sketcher.Constraint("Tangent", 59, 2, 56, 1),
    Sketcher.Constraint("Tangent", 60, 2, 61, 1),
    Sketcher.Constraint("Tangent", 61, 2, 62, 1),
    Sketcher.Constraint("Tangent", 62, 2, 63, 1),
    Sketcher.Constraint("Tangent", 63, 2, 60, 1),
    Sketcher.Constraint("Tangent", 64, 2, 65, 1),
    Sketcher.Constraint("Tangent", 65, 2, 66, 1),
    Sketcher.Constraint("Tangent", 66, 2, 67, 1),
    Sketcher.Constraint("Tangent", 67, 2, 64, 1),
    Sketcher.Constraint("Horizontal", 48),
    Sketcher.Constraint("Horizontal", 50),
    Sketcher.Constraint("Horizontal", 52),
    Sketcher.Constraint("Horizontal", 54),
    Sketcher.Constraint("Horizontal", 56),
    Sketcher.Constraint("Horizontal", 58),
    Sketcher.Constraint("Horizontal", 60),
    Sketcher.Constraint("Horizontal", 62),
    Sketcher.Constraint("Horizontal", 64),
    Sketcher.Constraint("Horizontal", 66),
    Sketcher.Constraint("Equal", 0, 1),
    Sketcher.Constraint("Equal", 1, 2),
    Sketcher.Constraint("Equal", 2, 3),
    Sketcher.Constraint("Equal", 3, 4),
    Sketcher.Constraint("Equal", 4, 5),
    Sketcher.Constraint("Equal", 5, 6),
    Sketcher.Constraint("Equal", 6, 7),
    Sketcher.Constraint("Equal", 8, 9),
    Sketcher.Constraint("Equal", 7, 10),
    Sketcher.Constraint("Equal", 10, 11),
    Sketcher.Constraint("Equal", 11, 12),
    Sketcher.Constraint("Equal", 12, 13),
    Sketcher.Constraint("Equal", 13, 14),
    Sketcher.Constraint("Equal", 14, 15),
    Sketcher.Constraint("Equal", 15, 16),
    Sketcher.Constraint("Equal", 16, 17),
    Sketcher.Constraint("Equal", 17, 18),
    Sketcher.Constraint("Equal", 18, 19),
    Sketcher.Constraint("Equal", 19, 20),
    Sketcher.Constraint("Equal", 20, 21),
    Sketcher.Constraint("Equal", 21, 22),
    Sketcher.Constraint("Equal", 22, 23),
    Sketcher.Constraint("Equal", 23, 24),
    Sketcher.Constraint("Equal", 24, 25),
    Sketcher.Constraint("Equal", 25, 26),
    Sketcher.Constraint("Equal", 26, 27),
    Sketcher.Constraint("Equal", 27, 28),
    Sketcher.Constraint("Equal", 28, 29),
    Sketcher.Constraint("Equal", 29, 30),
    Sketcher.Constraint("Equal", 30, 31),
    Sketcher.Constraint("Equal", 31, 32),
    Sketcher.Constraint("Equal", 32, 33),
    Sketcher.Constraint("Equal", 33, 34),
    Sketcher.Constraint("Equal", 34, 35),
    Sketcher.Constraint("Equal", 35, 36),
    Sketcher.Constraint("Equal", 36, 37),
    Sketcher.Constraint("Equal", 37, 38),
    Sketcher.Constraint("Equal", 38, 39),
    Sketcher.Constraint("Equal", 39, 40),
    Sketcher.Constraint("Equal", 40, 41),
    Sketcher.Constraint("Equal", 41, 42),
    Sketcher.Constraint("Equal", 42, 43),
    Sketcher.Constraint("Equal", 43, 44),
    Sketcher.Constraint("Equal", 44, 45),
    Sketcher.Constraint("Equal", 9, 46),
    Sketcher.Constraint("Equal", 46, 47),
    Sketcher.Constraint("Equal", 45, 49),
    Sketcher.Constraint("Equal", 55, 57),
    Sketcher.Constraint("Equal", 59, 61),
    Sketcher.Constraint("Equal", 63, 65),
    Sketcher.Constraint("Horizontal", 0, 3, 1, 3),
    Sketcher.Constraint("Horizontal", 2, 3, 3, 3),
    Sketcher.Constraint("Horizontal", 4, 3, 5, 3),
    Sketcher.Constraint("Horizontal", 6, 3, 7, 3),
    Sketcher.Constraint("Horizontal", 10, 3, 11, 3),
    Sketcher.Constraint("Horizontal", 12, 3, 13, 3),
    Sketcher.Constraint("Horizontal", 14, 3, 16, 3),
    Sketcher.Constraint("Horizontal", 15, 3, 17, 3),
    Sketcher.Constraint("Horizontal", 17, 3, 18, 3),
    Sketcher.Constraint("Horizontal", 16, 3, 19, 3),
    Sketcher.Constraint("Horizontal", 18, 3, 20, 3),
    Sketcher.Constraint("Horizontal", 19, 3, 21, 3),
    Sketcher.Constraint("Horizontal", 23, 3, 24, 3),
    Sketcher.Constraint("Horizontal", 22, 3, 25, 3),
    Sketcher.Constraint("Horizontal", 26, 3, 27, 3),
    Sketcher.Constraint("Horizontal", 27, 3, 28, 3),
    Sketcher.Constraint("Horizontal", 28, 3, 29, 3),
    Sketcher.Constraint("Horizontal", 30, 3, 31, 3),
    Sketcher.Constraint("Horizontal", 32, 3, 33, 3),
    Sketcher.Constraint("Horizontal", 29, 3, 34, 3),
    Sketcher.Constraint("Horizontal", 34, 3, 35, 3),
    Sketcher.Constraint("Horizontal", 35, 3, 36, 3),
    Sketcher.Constraint("Horizontal", 36, 3, 37, 3),
    Sketcher.Constraint("Horizontal", 37, 3, 38, 3),
    Sketcher.Constraint("Horizontal", 38, 3, 39, 3),
    Sketcher.Constraint("Horizontal", 40, 3, 41, 3),
    Sketcher.Constraint("Horizontal", 42, 3, 43, 3),
    Sketcher.Constraint("Horizontal", 44, 3, 45, 3),
    Sketcher.Constraint("Horizontal", 46, 3, 47, 3),
    Sketcher.Constraint("Vertical", 1, 3, 2, 3),
    Sketcher.Constraint("Vertical", 0, 3, 3, 3),
    Sketcher.Constraint("Vertical", 2, 3, 4, 3),
    Sketcher.Constraint("Vertical", 3, 3, 5, 3),
    Sketcher.Constraint("Vertical", 4, 3, 6, 3),
    Sketcher.Constraint("Vertical", 5, 3, 7, 3),
    Sketcher.Constraint("Vertical", 8, 3, 9, 3),
    Sketcher.Constraint("Vertical", 11, 3, 12, 3),
    Sketcher.Constraint("Vertical", 10, 3, 13, 3),
    Sketcher.Constraint("Vertical", 14, 3, 15, 3),
    Sketcher.Constraint("Vertical", 16, 3, 17, 3),
    Sketcher.Constraint("Vertical", 18, 3, 19, 3),
    Sketcher.Constraint("Vertical", 20, 3, 21, 3),
    Sketcher.Constraint("Vertical", 22, 3, 23, 3),
    Sketcher.Constraint("Vertical", 24, 3, 25, 3),
    Sketcher.Constraint("Vertical", 12, 3, 30, 3),
    Sketcher.Constraint("Vertical", 13, 3, 31, 3),
    Sketcher.Constraint("Vertical", 30, 3, 32, 3),
    Sketcher.Constraint("Vertical", 31, 3, 33, 3),
    Sketcher.Constraint("Vertical", 41, 3, 42, 3),
    Sketcher.Constraint("Vertical", 40, 3, 43, 3),
    Sketcher.Constraint("Vertical", 43, 3, 44, 3),
    Sketcher.Constraint("Vertical", 42, 3, 45, 3),
    Sketcher.Constraint("Vertical", 9, 3, 51, 3),
    Sketcher.Constraint("Vertical", 55, 3, 57, 3),
    Sketcher.Constraint("Vertical", 53, 3, 59, 3),
    Sketcher.Constraint("Vertical", 59, 3, 61, 3),
    Sketcher.Constraint("Vertical", 57, 3, 63, 3),
    Sketcher.Constraint("Vertical", 63, 3, 65, 3),
    Sketcher.Constraint("Vertical", 61, 3, 67, 3),
    Sketcher.Constraint("Radius", 53, 1.0),
    Sketcher.Constraint("Diameter", 0, 2.5),
    Sketcher.Constraint("Diameter", 8, 2.25),
    Sketcher.Constraint("DistanceX", 48, 1, 48, 2, 4.7),
    Sketcher.Constraint("DistanceX", 52, 1, 52, 2, 2.5),
    Sketcher.Constraint("DistanceX", -1, 1, 8, 3, 228.0),
    Sketcher.Constraint("DistanceX", -1, 1, 53, 3, 205.0),
    Sketcher.Constraint("DistanceY", -1, 1, 53, 3, 26.0),
    Sketcher.Constraint("DistanceY", -1, 1, 57, 3, 49.0),
    Sketcher.Constraint("DistanceY", -1, 1, 61, 3, 76.0),
    Sketcher.Constraint("DistanceY", -1, 1, 65, 3, 99.0),
    Sketcher.Constraint("DistanceX", -1, 1, 22, 3, 240.63),
    Sketcher.Constraint("DistanceY", -1, 1, 22, 3, 14.12),
    Sketcher.Constraint("DistanceY", -1, 1, 23, 3, 0.88),
    Sketcher.Constraint("DistanceX", -1, 1, 24, 3, 250.87),
    Sketcher.Constraint("DistanceY", -1, 1, 49, 3, 174.12),
    Sketcher.Constraint("DistanceY", -1, 1, 8, 3, 169.845),
    Sketcher.Constraint("DistanceY", -1, 1, 9, 3, 113.125),
    Sketcher.Constraint("DistanceX", -1, 1, 0, 3, 5.883883),
    Sketcher.Constraint("DistanceY", -1, 1, 0, 3, 199.616117),
    Sketcher.Constraint("DistanceX", -1, 1, 1, 3, 9.116117),
    Sketcher.Constraint("DistanceY", -1, 1, 2, 3, 194.383883),
    Sketcher.Constraint("DistanceY", -1, 1, 4, 3, 129.616117),
    Sketcher.Constraint("DistanceY", -1, 1, 6, 3, 124.383883),
    Sketcher.Constraint("DistanceX", -1, 1, 10, 3, 218.883883),
    Sketcher.Constraint("DistanceY", -1, 1, 10, 3, 157.116117),
    Sketcher.Constraint("DistanceX", -1, 1, 11, 3, 222.116117),
    Sketcher.Constraint("DistanceY", -1, 1, 12, 3, 151.883883),
    Sketcher.Constraint("DistanceX", -1, 1, 14, 3, 11.883883),
    Sketcher.Constraint("DistanceY", -1, 1, 14, 3, 9.116117),
    Sketcher.Constraint("DistanceY", -1, 1, 15, 3, 5.883883),
    Sketcher.Constraint("DistanceX", -1, 1, 16, 3, 15.116117),
    Sketcher.Constraint("DistanceX", -1, 1, 18, 3, 212.883883),
    Sketcher.Constraint("DistanceX", -1, 1, 20, 3, 216.116117),
    Sketcher.Constraint("DistanceX", -1, 1, 26, 3, 9.616117),
    Sketcher.Constraint("DistanceY", 26, 3, -1, 1, 0.883883),
    Sketcher.Constraint("DistanceX", -1, 1, 27, 3, 23.883883),
    Sketcher.Constraint("DistanceX", -1, 1, 28, 3, 62.116117),
    Sketcher.Constraint("DistanceX", -1, 1, 29, 3, 83.883883),
    Sketcher.Constraint("DistanceY", -1, 1, 30, 3, 136.116117),
    Sketcher.Constraint("DistanceY", -1, 1, 32, 3, 130.883883),
    Sketcher.Constraint("DistanceX", -1, 1, 34, 3, 122.116117),
    Sketcher.Constraint("DistanceX", -1, 1, 35, 3, 143.883883),
    Sketcher.Constraint("DistanceX", -1, 1, 36, 3, 182.116117),
    Sketcher.Constraint("DistanceX", -1, 1, 37, 3, 203.883883),
    Sketcher.Constraint("DistanceX", -1, 1, 38, 3, 232.616117),
    Sketcher.Constraint("DistanceX", -1, 1, 39, 3, 259.383883),
    Sketcher.Constraint("DistanceX", -1, 1, 40, 3, 228.883883),
    Sketcher.Constraint("DistanceY", -1, 1, 40, 3, 26.116117),
    Sketcher.Constraint("DistanceX", -1, 1, 41, 3, 232.116117),
    Sketcher.Constraint("DistanceY", -1, 1, 42, 3, 57.883883),
    Sketcher.Constraint("DistanceY", -1, 1, 44, 3, 81.116117),
    Sketcher.Constraint("DistanceX", -1, 1, 46, 3, 231.904505),
    Sketcher.Constraint("DistanceY", -1, 1, 46, 3, 178.274505),
    Sketcher.Constraint("DistanceX", -1, 1, 47, 3, 228.795495),
])
sketch8.setExpression("Constraints[139]", "Params.sketch8_radius")
sketch8.setExpression("Constraints[140]", "Params.sketch8_diameter")
sketch8.setExpression("Constraints[141]", "Params.sketch8_diameter2")
sketch8.setExpression("Constraints[142]", "Params.sketch8_width")
sketch8.setExpression("Constraints[143]", "Params.sketch8_width2")
pocket4 = body.newObject("PartDesign::Pocket", "Pocket003")
pocket4.Profile = sketch8
pocket4.Type = "ThroughAll"

sketch9 = body.newObject("Sketcher::SketchObject", "Sketch008")
sketch9.AttachmentSupport = (doc.getObject("XY_Plane"), [""])
sketch9.MapMode = "FlatFace"
sketch9.AttachmentOffset = App.Placement(App.Vector(0, 0, 4.6), App.Rotation())
sketch9.addGeometry([
    Part.Circle(App.Vector(274.2, 108.2, 0), App.Vector(0, 0, 1), 1.6),
    Part.Circle(App.Vector(220.8, 108.2, 0), App.Vector(0, 0, 1), 1.6),
    Part.Circle(App.Vector(274.2, 15.8, 0), App.Vector(0, 0, 1), 1.6),
    Part.Circle(App.Vector(220.8, 15.8, 0), App.Vector(0, 0, 1), 1.6),
], False)
sketch9.addConstraint([
    Sketcher.Constraint("Equal", 0, 1),
    Sketcher.Constraint("Equal", 1, 2),
    Sketcher.Constraint("Equal", 2, 3),
    Sketcher.Constraint("Horizontal", 0, 3, 1, 3),
    Sketcher.Constraint("Horizontal", 2, 3, 3, 3),
    Sketcher.Constraint("Vertical", 0, 3, 2, 3),
    Sketcher.Constraint("Vertical", 1, 3, 3, 3),
    Sketcher.Constraint("Diameter", 0, 3.1),
    Sketcher.Constraint("DistanceX", -1, 1, 0, 3, 274.17),
    Sketcher.Constraint("DistanceX", -1, 1, 1, 3, 220.83),
    Sketcher.Constraint("DistanceY", -1, 1, 0, 3, 108.228),
    Sketcher.Constraint("DistanceY", -1, 1, 2, 3, 15.772),
])
sketch9.setExpression("Constraints[7]", "Params.sketch9_diameter")
pocket5 = body.newObject("PartDesign::Pocket", "Pocket004")
pocket5.Profile = sketch9
pocket5.Type = "ThroughAll"
doc.recompute()

fillet = body.newObject("PartDesign::Fillet", "Fillet")
fillet.Base = (pocket5, edges_at(pocket5, [
    (279, 0, 2.3),
    (279, 112, 2.3),
    (258.5, -5, 2.3),
    (233.5, -5, 2.3),
    (0, 212, 2.3),
    (242, 212, 2.3),
    (242, 170.97, 2.3),
    (228, 0, 2.3),
    (203, -5, 2.3),
    (183, -5, 2.3),
    (143, -5, 2.3),
    (123, -5, 2.3),
    (83, -5, 2.3),
    (63, -5, 2.3),
    (23, -5, 2.3),
    (10.5, -5, 2.3),
    (0, 0, 2.3),
]))
fillet.setExpression("Radius", "Params.fillet_radius")

doc.recompute()
